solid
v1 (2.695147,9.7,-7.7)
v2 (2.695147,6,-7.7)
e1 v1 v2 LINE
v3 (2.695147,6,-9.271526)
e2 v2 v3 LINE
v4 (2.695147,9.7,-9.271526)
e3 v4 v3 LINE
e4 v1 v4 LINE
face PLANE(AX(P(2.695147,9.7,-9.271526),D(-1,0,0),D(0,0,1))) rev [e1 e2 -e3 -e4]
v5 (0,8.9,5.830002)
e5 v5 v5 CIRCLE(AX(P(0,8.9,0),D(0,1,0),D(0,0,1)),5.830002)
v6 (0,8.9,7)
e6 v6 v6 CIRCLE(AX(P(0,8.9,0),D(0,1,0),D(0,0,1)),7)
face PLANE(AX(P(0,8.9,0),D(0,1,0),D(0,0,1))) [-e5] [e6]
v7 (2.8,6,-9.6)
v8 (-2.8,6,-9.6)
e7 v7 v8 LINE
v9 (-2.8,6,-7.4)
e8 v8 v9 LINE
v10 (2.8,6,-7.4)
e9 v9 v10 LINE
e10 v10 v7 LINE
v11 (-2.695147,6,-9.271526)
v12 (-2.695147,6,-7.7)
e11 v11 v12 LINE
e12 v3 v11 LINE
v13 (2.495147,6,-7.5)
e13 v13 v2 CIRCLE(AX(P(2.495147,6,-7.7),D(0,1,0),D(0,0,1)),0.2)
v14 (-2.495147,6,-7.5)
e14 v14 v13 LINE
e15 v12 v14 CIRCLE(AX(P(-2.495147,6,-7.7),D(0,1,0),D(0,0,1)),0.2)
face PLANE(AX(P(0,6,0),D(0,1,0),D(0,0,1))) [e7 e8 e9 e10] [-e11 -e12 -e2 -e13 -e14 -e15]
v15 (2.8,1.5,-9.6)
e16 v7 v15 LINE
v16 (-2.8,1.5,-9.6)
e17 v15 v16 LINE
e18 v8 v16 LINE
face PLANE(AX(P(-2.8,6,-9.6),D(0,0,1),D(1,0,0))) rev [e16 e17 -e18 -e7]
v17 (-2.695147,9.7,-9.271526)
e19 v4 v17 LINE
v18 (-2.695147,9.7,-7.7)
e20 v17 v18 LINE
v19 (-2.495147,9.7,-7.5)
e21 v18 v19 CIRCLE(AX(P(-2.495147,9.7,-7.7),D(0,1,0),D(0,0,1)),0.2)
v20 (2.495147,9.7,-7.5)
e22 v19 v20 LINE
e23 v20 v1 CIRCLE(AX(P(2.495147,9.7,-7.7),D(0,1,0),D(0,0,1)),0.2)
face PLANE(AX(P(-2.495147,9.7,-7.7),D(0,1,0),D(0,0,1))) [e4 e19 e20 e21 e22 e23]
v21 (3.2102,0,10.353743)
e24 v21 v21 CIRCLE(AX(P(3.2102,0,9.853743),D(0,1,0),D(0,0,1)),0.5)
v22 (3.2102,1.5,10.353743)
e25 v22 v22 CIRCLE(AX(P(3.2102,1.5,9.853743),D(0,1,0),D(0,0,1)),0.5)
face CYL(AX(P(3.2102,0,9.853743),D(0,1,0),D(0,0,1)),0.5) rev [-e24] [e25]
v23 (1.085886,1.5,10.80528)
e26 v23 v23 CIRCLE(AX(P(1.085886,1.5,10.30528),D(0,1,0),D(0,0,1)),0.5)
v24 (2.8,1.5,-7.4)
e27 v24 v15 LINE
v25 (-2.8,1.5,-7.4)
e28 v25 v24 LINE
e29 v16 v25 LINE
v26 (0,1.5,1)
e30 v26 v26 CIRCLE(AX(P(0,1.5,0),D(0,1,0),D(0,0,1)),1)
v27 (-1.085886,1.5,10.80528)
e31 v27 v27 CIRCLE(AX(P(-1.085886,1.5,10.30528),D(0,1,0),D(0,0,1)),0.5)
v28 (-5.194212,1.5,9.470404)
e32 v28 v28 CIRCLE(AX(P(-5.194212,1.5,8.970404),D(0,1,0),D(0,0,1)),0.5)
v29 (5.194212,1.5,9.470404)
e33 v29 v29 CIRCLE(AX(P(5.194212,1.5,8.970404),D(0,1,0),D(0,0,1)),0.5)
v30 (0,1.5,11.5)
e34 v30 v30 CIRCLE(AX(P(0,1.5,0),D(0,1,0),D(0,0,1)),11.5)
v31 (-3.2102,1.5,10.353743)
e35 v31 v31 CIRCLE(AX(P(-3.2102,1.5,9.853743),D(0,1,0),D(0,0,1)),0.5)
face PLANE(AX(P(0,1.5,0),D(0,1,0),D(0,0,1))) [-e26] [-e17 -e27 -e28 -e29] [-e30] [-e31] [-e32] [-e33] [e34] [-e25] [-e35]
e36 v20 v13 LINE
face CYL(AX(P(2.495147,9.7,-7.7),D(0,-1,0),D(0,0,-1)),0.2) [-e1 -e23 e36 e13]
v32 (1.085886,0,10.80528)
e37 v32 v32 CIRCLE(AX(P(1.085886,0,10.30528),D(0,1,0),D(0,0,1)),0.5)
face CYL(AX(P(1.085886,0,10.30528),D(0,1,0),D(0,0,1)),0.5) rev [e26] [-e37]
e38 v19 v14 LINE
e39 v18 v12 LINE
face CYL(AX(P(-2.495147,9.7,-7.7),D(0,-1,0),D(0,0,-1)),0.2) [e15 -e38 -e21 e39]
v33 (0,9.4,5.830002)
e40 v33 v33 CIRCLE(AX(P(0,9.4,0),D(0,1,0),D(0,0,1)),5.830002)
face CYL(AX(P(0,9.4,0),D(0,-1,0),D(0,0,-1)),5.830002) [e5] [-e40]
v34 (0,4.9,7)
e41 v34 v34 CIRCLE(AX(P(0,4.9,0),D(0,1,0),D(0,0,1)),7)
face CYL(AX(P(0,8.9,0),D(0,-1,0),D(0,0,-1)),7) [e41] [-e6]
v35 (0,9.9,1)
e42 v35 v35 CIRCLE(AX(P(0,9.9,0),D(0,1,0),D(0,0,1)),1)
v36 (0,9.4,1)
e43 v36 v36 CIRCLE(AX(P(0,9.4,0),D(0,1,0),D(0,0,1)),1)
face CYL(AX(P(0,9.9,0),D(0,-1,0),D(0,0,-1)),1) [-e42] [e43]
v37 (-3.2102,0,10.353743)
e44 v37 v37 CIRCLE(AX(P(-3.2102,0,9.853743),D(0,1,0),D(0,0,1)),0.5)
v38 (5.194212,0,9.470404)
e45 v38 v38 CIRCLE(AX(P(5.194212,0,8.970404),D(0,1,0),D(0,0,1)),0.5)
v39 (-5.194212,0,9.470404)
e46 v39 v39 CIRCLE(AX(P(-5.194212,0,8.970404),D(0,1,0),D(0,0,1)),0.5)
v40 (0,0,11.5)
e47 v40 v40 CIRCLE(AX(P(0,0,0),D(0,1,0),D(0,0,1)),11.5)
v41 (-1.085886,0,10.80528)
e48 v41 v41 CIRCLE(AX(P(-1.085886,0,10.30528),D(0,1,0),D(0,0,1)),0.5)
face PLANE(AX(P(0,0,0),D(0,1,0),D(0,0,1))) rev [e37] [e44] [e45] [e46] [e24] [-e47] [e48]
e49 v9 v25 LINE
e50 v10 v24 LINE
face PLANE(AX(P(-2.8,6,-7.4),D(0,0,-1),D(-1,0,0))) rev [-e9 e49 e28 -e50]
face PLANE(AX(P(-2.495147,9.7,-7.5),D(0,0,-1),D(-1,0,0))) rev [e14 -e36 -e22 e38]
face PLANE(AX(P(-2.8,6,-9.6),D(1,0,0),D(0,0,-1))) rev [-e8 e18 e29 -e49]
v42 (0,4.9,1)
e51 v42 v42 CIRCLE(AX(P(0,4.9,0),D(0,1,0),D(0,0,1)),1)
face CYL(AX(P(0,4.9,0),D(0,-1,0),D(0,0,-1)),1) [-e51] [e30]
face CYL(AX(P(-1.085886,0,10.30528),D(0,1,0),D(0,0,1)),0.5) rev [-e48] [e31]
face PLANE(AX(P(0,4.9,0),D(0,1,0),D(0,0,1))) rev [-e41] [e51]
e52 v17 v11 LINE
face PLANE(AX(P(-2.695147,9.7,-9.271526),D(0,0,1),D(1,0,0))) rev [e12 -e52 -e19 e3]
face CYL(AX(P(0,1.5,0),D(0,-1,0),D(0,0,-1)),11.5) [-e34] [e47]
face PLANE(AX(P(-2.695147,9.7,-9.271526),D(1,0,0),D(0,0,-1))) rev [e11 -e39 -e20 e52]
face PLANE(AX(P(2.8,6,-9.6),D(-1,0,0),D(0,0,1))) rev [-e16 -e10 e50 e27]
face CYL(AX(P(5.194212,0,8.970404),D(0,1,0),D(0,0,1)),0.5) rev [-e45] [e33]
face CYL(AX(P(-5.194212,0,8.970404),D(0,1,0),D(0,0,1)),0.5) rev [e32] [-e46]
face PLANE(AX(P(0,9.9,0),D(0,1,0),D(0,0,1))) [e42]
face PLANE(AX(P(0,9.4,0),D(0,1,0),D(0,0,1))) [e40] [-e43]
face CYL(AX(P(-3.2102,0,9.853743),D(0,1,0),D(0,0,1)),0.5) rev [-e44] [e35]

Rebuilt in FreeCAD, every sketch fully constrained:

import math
import FreeCAD as App
import Part
import Sketcher

V = App.Vector


def add_polygon(sketch, points):
    """Adds a closed chain of lines whose ends are joined by coincident constraints."""
    first, n = sketch.GeometryCount, len(points)
    for a, b in zip(points, points[1:] + points[:1]):
        sketch.addGeometry(Part.LineSegment(App.Vector(*a, 0), App.Vector(*b, 0)), False)
    for i in range(n):
        sketch.addConstraint(Sketcher.Constraint("Coincident", first + i, 2, first + (i + 1) % n, 1))

doc = App.newDocument("Part")
params = doc.addObject("Spreadsheet::Sheet", "Params")
for row, (alias, value) in enumerate([
    ("sketch1_diameter", "23 mm"),
    ("pad1_length", "1.5 mm"),
    ("sketch2_width", "5.6 mm"),
    ("sketch2_height", "2.2 mm"),
    ("pad2_length", "4.5 mm"),
    ("sketch3_radius", "0.2 mm"),
    ("pad3_length", "3.7 mm"),
    ("sketch4_diameter", "2 mm"),
    ("pad4_length", "3.4 mm"),
    ("sketch5_diameter", "14 mm"),
    ("pad5_length", "4 mm"),
    ("pad6_length", "0.5 mm"),
    ("sketch7_diameter", "2 mm"),
    ("pad7_length", "0.5 mm"),
    ("sketch8_diameter", "1 mm"),
], start=1):
    params.set(f"A{row}", alias)
    params.set(f"B{row}", "=" + value)
    params.setAlias(f"B{row}", alias)

body = doc.addObject("PartDesign::Body", "Body")

sketch1 = doc.addObject("Sketcher::SketchObject", "Sketch")
body.addObject(sketch1)
sketch1.AttachmentSupport = (doc.XZ_Plane, [""])
sketch1.MapMode = "FlatFace"
sketch1.addGeometry(Part.Circle(V(0, 0, 0), V(0, 0, 1), 12), False)
sketch1.addConstraint([
    Sketcher.Constraint("Coincident", 0, 3, -1, 1),
    Sketcher.Constraint("Diameter", 0, 23.0),
])
sketch1.setExpression("Constraints[1]", "Params.sketch1_diameter")
pad1 = doc.addObject("PartDesign::Pad", "Pad")
body.addObject(pad1)
pad1.Profile = sketch1
pad1.setExpression("Length", "Params.pad1_length")
pad1.Reversed = True

sketch2 = doc.addObject("Sketcher::SketchObject", "Sketch001")
body.addObject(sketch2)
sketch2.AttachmentSupport = (doc.XZ_Plane, [""])
sketch2.MapMode = "FlatFace"
sketch2.AttachmentOffset = App.Placement(V(0, 0, -1.5), App.Rotation())
add_polygon(sketch2, [(-2.8, -9.6), (-2.8, -7.4), (2.8, -7.4), (2.8, -9.6)])
sketch2.addConstraint([
    Sketcher.Constraint("Vertical", 0),
    Sketcher.Constraint("Horizontal", 1),
    Sketcher.Constraint("Vertical", 2),
    Sketcher.Constraint("Horizontal", 3),
    Sketcher.Constraint("DistanceX", 1, 1, 1, 2, 5.6),
    Sketcher.Constraint("DistanceY", 0, 1, 0, 2, 2.2),
    Sketcher.Constraint("DistanceX", 0, 2, -1, 1, 2.8),
    Sketcher.Constraint("DistanceY", 0, 2, -1, 1, 7.4),
])
sketch2.setExpression("Constraints[8]", "Params.sketch2_width")
sketch2.setExpression("Constraints[9]", "Params.sketch2_height")
pad2 = doc.addObject("PartDesign::Pad", "Pad001")
body.addObject(pad2)
pad2.Profile = sketch2
pad2.setExpression("Length", "Params.pad2_length")
pad2.Reversed = True

sketch3 = doc.addObject("Sketcher::SketchObject", "Sketch002")
body.addObject(sketch3)
sketch3.AttachmentSupport = (doc.XZ_Plane, [""])
sketch3.MapMode = "FlatFace"
sketch3.AttachmentOffset = App.Placement(V(0, 0, -6), App.Rotation())
sketch3.addGeometry([
    Part.LineSegment(V(2.7, -9.27, 0), V(-2.7, -9.27, 0)),
    Part.LineSegment(V(-2.7, -9.27, 0), V(-2.7, -7.7, 0)),
    Part.ArcOfCircle(Part.Circle(V(-2.5, -7.7, 0), V(0, 0, 1), 0.2), math.radians(90), math.radians(180)),
    Part.LineSegment(V(-2.5, -7.5, 0), V(2.5, -7.5, 0)),
    Part.ArcOfCircle(Part.Circle(V(2.5, -7.7, 0), V(0, 0, 1), 0.2), math.radians(0), math.radians(90)),
    Part.LineSegment(V(2.7, -7.7, 0), V(2.7, -9.27, 0)),
], False)
sketch3.addConstraint([
    Sketcher.Constraint("Coincident", 0, 2, 1, 1),
    Sketcher.Constraint("Tangent", 1, 2, 2, 2),
    Sketcher.Constraint("Tangent", 2, 1, 3, 1),
    Sketcher.Constraint("Tangent", 3, 2, 4, 2),
    Sketcher.Constraint("Tangent", 4, 1, 5, 1),
    Sketcher.Constraint("Coincident", 5, 2, 0, 1),
    Sketcher.Constraint("Horizontal", 0),
    Sketcher.Constraint("Vertical", 1),
    Sketcher.Constraint("Horizontal", 3),
    Sketcher.Constraint("Vertical", 5),
    Sketcher.Constraint("Equal", 2, 4),
    Sketcher.Constraint("Radius", 2, 0.2),
    Sketcher.Constraint("DistanceY", 2, 3, -1, 1, 7.7),
    Sketcher.Constraint("DistanceX", 0, 2, 0, 1, 5.390294),
    Sketcher.Constraint("DistanceY", 1, 1, 1, 2, 1.571526),
    Sketcher.Constraint("DistanceX", 2, 3, -1, 1, 2.495147),
])
sketch3.setExpression("Constraints[11]", "Params.sketch3_radius")
pad3 = doc.addObject("PartDesign::Pad", "Pad002")
body.addObject(pad3)
pad3.Profile = sketch3
pad3.setExpression("Length", "Params.pad3_length")
pad3.Reversed = True

sketch4 = doc.addObject("Sketcher::SketchObject", "Sketch003")
body.addObject(sketch4)
sketch4.AttachmentSupport = (doc.XZ_Plane, [""])
sketch4.MapMode = "FlatFace"
sketch4.AttachmentOffset = App.Placement(V(0, 0, -1.5), App.Rotation())
sketch4.addGeometry(Part.Circle(V(0, 0, 0), V(0, 0, 1), 1), False)
sketch4.addConstraint([
    Sketcher.Constraint("Coincident", 0, 3, -1, 1),
    Sketcher.Constraint("Diameter", 0, 2.0),
])
sketch4.setExpression("Constraints[1]", "Params.sketch4_diameter")
pad4 = doc.addObject("PartDesign::Pad", "Pad003")
body.addObject(pad4)
pad4.Profile = sketch4
pad4.setExpression("Length", "Params.pad4_length")
pad4.Reversed = True

sketch5 = doc.addObject("Sketcher::SketchObject", "Sketch004")
body.addObject(sketch5)
sketch5.AttachmentSupport = (doc.XZ_Plane, [""])
sketch5.MapMode = "FlatFace"
sketch5.AttachmentOffset = App.Placement(V(0, 0, -4.9), App.Rotation())
sketch5.addGeometry(Part.Circle(V(0, 0, 0), V(0, 0, 1), 7), False)
sketch5.addConstraint([
    Sketcher.Constraint("Coincident", 0, 3, -1, 1),
    Sketcher.Constraint("Diameter", 0, 14.0),
])
sketch5.setExpression("Constraints[1]", "Params.sketch5_diameter")
pad5 = doc.addObject("PartDesign::Pad", "Pad004")
body.addObject(pad5)
pad5.Profile = sketch5
pad5.setExpression("Length", "Params.pad5_length")
pad5.Reversed = True

sketch6 = doc.addObject("Sketcher::SketchObject", "Sketch005")
body.addObject(sketch6)
sketch6.AttachmentSupport = (doc.XZ_Plane, [""])
sketch6.MapMode = "FlatFace"
sketch6.AttachmentOffset = App.Placement(V(0, 0, -8.9), App.Rotation())
sketch6.addGeometry(Part.Circle(V(0, 0, 0), V(0, 0, 1), 6), False)
sketch6.addConstraint([
    Sketcher.Constraint("Coincident", 0, 3, -1, 1),
    Sketcher.Constraint("Diameter", 0, 11.660004),
])
pad6 = doc.addObject("PartDesign::Pad", "Pad005")
body.addObject(pad6)
pad6.Profile = sketch6
pad6.setExpression("Length", "Params.pad6_length")
pad6.Reversed = True

sketch7 = doc.addObject("Sketcher::SketchObject", "Sketch006")
body.addObject(sketch7)
sketch7.AttachmentSupport = (doc.XZ_Plane, [""])
sketch7.MapMode = "FlatFace"
sketch7.AttachmentOffset = App.Placement(V(0, 0, -9.4), App.Rotation())
sketch7.addGeometry(Part.Circle(V(0, 0, 0), V(0, 0, 1), 1), False)
sketch7.addConstraint([
    Sketcher.Constraint("Coincident", 0, 3, -1, 1),
    Sketcher.Constraint("Diameter", 0, 2.0),
])
sketch7.setExpression("Constraints[1]", "Params.sketch7_diameter")
pad7 = doc.addObject("PartDesign::Pad", "Pad006")
body.addObject(pad7)
pad7.Profile = sketch7
pad7.setExpression("Length", "Params.pad7_length")
pad7.Reversed = True

sketch8 = doc.addObject("Sketcher::SketchObject", "Sketch007")
body.addObject(sketch8)
sketch8.AttachmentSupport = (doc.XZ_Plane, [""])
sketch8.MapMode = "FlatFace"
sketch8.AttachmentOffset = App.Placement(V(0, 0, -1.5), App.Rotation())
sketch8.addGeometry([
    Part.Circle(V(5.2, 9, 0), V(0, 0, 1), 0.5),
    Part.Circle(V(3.2, 9.9, 0), V(0, 0, 1), 0.5),
    Part.Circle(V(1.1, 10.3, 0), V(0, 0, 1), 0.5),
    Part.Circle(V(-1.1, 10.3, 0), V(0, 0, 1), 0.5),
    Part.Circle(V(-3.2, 9.9, 0), V(0, 0, 1), 0.5),
    Part.Circle(V(-5.2, 9, 0), V(0, 0, 1), 0.5),
], False)
sketch8.addConstraint([
    Sketcher.Constraint("Equal", 0, 1),
    Sketcher.Constraint("Equal", 1, 2),
    Sketcher.Constraint("Equal", 2, 3),
    Sketcher.Constraint("Equal", 3, 4),
    Sketcher.Constraint("Equal", 4, 5),
    Sketcher.Constraint("Symmetric", 2, 3, 3, 3, -2),
    Sketcher.Constraint("Symmetric", 1, 3, 4, 3, -2),
    Sketcher.Constraint("Symmetric", 0, 3, 5, 3, -2),
    Sketcher.Constraint("Diameter", 0, 1.0),
    Sketcher.Constraint("DistanceX", -1, 1, 1, 3, 3.2102),
    Sketcher.Constraint("DistanceX", 3, 3, 0, 3, 6.280098),
    Sketcher.Constraint("DistanceY", -1, 1, 2, 3, 10.30528),
    Sketcher.Constraint("DistanceY", 0, 3, 1, 3, 0.883339),
    Sketcher.Constraint("DistanceX", 4, 3, 0, 3, 8.404412),
    Sketcher.Constraint("DistanceY", -1, 1, 0, 3, 8.970404),
])
sketch8.setExpression("Constraints[8]", "Params.sketch8_diameter")
pocket1 = doc.addObject("PartDesign::Pocket", "Pocket")
body.addObject(pocket1)
pocket1.Profile = sketch8
pocket1.Type = "ThroughAll"
pocket1.Reversed = True

doc.recompute()
